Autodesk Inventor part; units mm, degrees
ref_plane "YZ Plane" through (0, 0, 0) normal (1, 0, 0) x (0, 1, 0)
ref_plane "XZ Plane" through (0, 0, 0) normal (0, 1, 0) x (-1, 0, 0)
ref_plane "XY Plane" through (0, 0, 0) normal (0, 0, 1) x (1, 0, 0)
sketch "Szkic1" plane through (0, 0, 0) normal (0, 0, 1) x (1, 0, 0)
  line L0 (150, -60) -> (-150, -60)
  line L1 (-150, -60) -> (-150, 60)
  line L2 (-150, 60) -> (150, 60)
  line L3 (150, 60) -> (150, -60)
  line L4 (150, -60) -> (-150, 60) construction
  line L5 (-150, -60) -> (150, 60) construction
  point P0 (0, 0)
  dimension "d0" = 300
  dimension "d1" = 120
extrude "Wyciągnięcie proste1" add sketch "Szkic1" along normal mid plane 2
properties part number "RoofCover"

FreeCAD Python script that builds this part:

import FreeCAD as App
import Part
import Sketcher


def add_polygon(sketch, points):
    """Adds a closed chain of lines whose ends are joined by coincident constraints."""
    first, n = sketch.GeometryCount, len(points)
    for a, b in zip(points, points[1:] + points[:1]):
        sketch.addGeometry(Part.LineSegment(App.Vector(*a, 0), App.Vector(*b, 0)), False)
    for i in range(n):
        sketch.addConstraint(Sketcher.Constraint("Coincident", first + i, 2, first + (i + 1) % n, 1))

doc = App.newDocument("Part")
body = doc.addObject("PartDesign::Body", "Body")

sketch1 = body.newObject("Sketcher::SketchObject", "Sketch")
sketch1.AttachmentSupport = (doc.getObject("XY_Plane"), [""])
sketch1.MapMode = "FlatFace"
add_polygon(sketch1, [(-150, -60), (150, -60), (150, 60), (-150, 60)])
sketch1.addConstraint(Sketcher.Constraint("Horizontal", 0))
sketch1.addConstraint(Sketcher.Constraint("Vertical", 1))
sketch1.addConstraint(Sketcher.Constraint("Horizontal", 2))
sketch1.addConstraint(Sketcher.Constraint("Vertical", 3))
sketch1.addConstraint(Sketcher.Constraint("Symmetric", 0, 2, 2, 2, -1, 1))
sketch1.addConstraint(Sketcher.Constraint("DistanceX", 0, 1, 0, 2, 300.0))
sketch1.addConstraint(Sketcher.Constraint("DistanceY", 1, 1, 1, 2, 120.0))
pad1 = body.newObject("PartDesign::Pad", "Pad")
pad1.Profile = sketch1
pad1.Length = 2
pad1.Midplane = True

doc.recompute()
